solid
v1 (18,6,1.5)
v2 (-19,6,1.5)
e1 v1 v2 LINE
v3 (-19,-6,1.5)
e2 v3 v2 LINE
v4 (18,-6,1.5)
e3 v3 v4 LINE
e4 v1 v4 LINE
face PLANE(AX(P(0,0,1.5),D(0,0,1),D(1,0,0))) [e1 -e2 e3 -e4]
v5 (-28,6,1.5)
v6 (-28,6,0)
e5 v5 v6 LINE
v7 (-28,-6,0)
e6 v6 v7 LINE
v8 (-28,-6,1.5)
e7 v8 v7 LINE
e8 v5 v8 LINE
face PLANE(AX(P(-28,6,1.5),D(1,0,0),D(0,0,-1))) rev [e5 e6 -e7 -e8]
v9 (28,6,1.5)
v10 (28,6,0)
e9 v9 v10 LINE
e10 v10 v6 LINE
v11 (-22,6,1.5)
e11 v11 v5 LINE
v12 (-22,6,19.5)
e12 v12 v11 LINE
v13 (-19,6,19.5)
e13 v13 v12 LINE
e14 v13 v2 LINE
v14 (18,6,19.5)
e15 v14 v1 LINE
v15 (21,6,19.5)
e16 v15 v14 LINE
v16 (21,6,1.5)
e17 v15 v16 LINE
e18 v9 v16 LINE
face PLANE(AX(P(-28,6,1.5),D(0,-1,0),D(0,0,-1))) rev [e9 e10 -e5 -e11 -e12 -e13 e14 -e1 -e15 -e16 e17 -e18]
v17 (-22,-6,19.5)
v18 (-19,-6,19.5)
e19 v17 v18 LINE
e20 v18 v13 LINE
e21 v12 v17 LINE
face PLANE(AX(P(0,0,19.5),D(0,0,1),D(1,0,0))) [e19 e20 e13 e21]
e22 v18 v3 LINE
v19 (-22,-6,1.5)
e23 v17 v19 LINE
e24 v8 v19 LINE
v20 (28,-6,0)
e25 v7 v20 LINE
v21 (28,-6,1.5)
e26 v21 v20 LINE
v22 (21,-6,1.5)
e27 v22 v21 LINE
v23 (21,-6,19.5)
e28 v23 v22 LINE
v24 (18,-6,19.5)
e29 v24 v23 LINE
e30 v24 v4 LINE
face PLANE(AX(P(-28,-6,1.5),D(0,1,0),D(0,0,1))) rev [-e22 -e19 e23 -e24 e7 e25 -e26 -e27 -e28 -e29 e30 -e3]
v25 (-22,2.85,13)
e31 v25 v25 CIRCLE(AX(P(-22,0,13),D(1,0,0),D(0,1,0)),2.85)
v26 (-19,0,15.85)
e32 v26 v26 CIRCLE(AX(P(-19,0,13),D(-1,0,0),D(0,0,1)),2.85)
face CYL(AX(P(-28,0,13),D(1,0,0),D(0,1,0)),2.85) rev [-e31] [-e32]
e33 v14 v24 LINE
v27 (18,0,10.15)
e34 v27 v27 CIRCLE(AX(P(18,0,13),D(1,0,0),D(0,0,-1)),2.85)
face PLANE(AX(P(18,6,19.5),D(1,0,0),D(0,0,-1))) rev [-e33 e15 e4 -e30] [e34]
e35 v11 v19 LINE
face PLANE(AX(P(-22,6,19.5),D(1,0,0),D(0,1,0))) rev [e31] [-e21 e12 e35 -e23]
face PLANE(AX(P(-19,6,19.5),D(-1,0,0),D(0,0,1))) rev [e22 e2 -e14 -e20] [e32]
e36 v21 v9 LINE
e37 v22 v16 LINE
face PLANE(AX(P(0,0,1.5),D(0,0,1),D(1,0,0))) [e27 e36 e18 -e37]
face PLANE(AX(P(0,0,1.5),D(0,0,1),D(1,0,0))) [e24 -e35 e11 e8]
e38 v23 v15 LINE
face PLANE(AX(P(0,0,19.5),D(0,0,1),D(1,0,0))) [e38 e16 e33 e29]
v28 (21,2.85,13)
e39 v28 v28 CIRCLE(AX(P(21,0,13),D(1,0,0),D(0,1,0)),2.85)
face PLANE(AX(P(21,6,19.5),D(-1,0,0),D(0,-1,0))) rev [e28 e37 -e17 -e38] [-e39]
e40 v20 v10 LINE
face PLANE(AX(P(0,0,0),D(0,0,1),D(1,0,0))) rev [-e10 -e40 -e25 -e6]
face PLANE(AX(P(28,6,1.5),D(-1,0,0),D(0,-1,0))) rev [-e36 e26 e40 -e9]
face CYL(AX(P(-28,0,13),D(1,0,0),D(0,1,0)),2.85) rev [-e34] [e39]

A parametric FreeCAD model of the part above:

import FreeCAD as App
import Part
import Sketcher
Q = App.Units.Quantity


def add_polygon(sketch, points):
    """Adds a closed chain of lines whose ends are joined by coincident constraints."""
    first, n = sketch.GeometryCount, len(points)
    for a, b in zip(points, points[1:] + points[:1]):
        sketch.addGeometry(Part.LineSegment(App.Vector(*a, 0), App.Vector(*b, 0)), False)
    for i in range(n):
        sketch.addConstraint(Sketcher.Constraint("Coincident", first + i, 2, first + (i + 1) % n, 1))

doc = App.newDocument("Part")
body = doc.addObject("PartDesign::Body", "Body")

# Sketch on XY plane
sketch1 = body.newObject("Sketcher::SketchObject", "Sketch")
sketch1.AttachmentSupport = (doc.getObject("XY_Plane"), [""])
sketch1.MapMode = "FlatFace"
add_polygon(sketch1, [(-28, 6), (-28, -6), (28, -6), (28, 6)])  # lines 0-3
sketch1.addConstraint([
    Sketcher.Constraint("Vertical", 0),
    Sketcher.Constraint("Horizontal", 1),
    Sketcher.Constraint("Vertical", 2),
    Sketcher.Constraint("Horizontal", 3),
    Sketcher.Constraint("Symmetric", 0, 2, 2, 2, -1, 1),
    Sketcher.Constraint("DistanceX", 1, 1, 1, 2, Q("56 mm")),
    Sketcher.Constraint("DistanceY", 0, 2, 0, 1, Q("12 mm")),
])
pad1 = body.newObject("PartDesign::Pad", "Pad")
pad1.Profile = sketch1
pad1.Length = 1.5

# Sketch on XY plane
sketch2 = body.newObject("Sketcher::SketchObject", "Sketch001")
sketch2.AttachmentSupport = (doc.getObject("XY_Plane"), [""])
sketch2.MapMode = "FlatFace"
sketch2.AttachmentOffset = App.Placement(App.Vector(0, 0, 1.5), App.Rotation())
add_polygon(sketch2, [(-22, 6), (-22, -6), (-19, -6), (-19, 6)])  # lines 0-3
add_polygon(sketch2, [(18, 6), (18, -6), (21, -6), (21, 6)])  # lines 4-7
sketch2.addConstraint([
    Sketcher.Constraint("Vertical", 0),
    Sketcher.Constraint("Horizontal", 1),
    Sketcher.Constraint("Vertical", 2),
    Sketcher.Constraint("Horizontal", 3),
    Sketcher.Constraint("Vertical", 4),
    Sketcher.Constraint("Horizontal", 5),
    Sketcher.Constraint("Vertical", 6),
    Sketcher.Constraint("Horizontal", 7),
    Sketcher.Constraint("Horizontal", 1, 2, 4, 2),
    Sketcher.Constraint("Horizontal", 3, 2, 6, 2),
    Sketcher.Constraint("Equal", 3, 5),
    Sketcher.Constraint("DistanceX", 1, 1, 1, 2, Q("3 mm")),
    Sketcher.Constraint("DistanceY", 0, 2, 0, 1, Q("12 mm")),
    Sketcher.Constraint("DistanceX", 0, 2, -1, 1, Q("22 mm")),
    Sketcher.Constraint("DistanceY", 0, 2, -1, 1, Q("6 mm")),
    Sketcher.Constraint("DistanceX", -1, 1, 4, 2, Q("18 mm")),
])
pad2 = body.newObject("PartDesign::Pad", "Pad001")
pad2.Profile = sketch2
pad2.Length = 18

# Sketch on YZ plane
sketch3 = body.newObject("Sketcher::SketchObject", "Sketch002")
sketch3.AttachmentSupport = (doc.getObject("YZ_Plane"), [""])
sketch3.MapMode = "FlatFace"
sketch3.AttachmentOffset = App.Placement(App.Vector(0, 0, 21), App.Rotation())
sketch3.addGeometry(Part.Circle(App.Vector(0, 13, 0), App.Vector(0, 0, 1), 2.9), False)
sketch3.addConstraint([
    Sketcher.Constraint("PointOnObject", 0, 3, -2),
    Sketcher.Constraint("Diameter", 0, Q("5.7 mm")),
    Sketcher.Constraint("DistanceY", -1, 1, 0, 3, Q("13 mm")),
])
pocket1 = body.newObject("PartDesign::Pocket", "Pocket")
pocket1.Profile = sketch3
pocket1.Type = "ThroughAll"

doc.recompute()
